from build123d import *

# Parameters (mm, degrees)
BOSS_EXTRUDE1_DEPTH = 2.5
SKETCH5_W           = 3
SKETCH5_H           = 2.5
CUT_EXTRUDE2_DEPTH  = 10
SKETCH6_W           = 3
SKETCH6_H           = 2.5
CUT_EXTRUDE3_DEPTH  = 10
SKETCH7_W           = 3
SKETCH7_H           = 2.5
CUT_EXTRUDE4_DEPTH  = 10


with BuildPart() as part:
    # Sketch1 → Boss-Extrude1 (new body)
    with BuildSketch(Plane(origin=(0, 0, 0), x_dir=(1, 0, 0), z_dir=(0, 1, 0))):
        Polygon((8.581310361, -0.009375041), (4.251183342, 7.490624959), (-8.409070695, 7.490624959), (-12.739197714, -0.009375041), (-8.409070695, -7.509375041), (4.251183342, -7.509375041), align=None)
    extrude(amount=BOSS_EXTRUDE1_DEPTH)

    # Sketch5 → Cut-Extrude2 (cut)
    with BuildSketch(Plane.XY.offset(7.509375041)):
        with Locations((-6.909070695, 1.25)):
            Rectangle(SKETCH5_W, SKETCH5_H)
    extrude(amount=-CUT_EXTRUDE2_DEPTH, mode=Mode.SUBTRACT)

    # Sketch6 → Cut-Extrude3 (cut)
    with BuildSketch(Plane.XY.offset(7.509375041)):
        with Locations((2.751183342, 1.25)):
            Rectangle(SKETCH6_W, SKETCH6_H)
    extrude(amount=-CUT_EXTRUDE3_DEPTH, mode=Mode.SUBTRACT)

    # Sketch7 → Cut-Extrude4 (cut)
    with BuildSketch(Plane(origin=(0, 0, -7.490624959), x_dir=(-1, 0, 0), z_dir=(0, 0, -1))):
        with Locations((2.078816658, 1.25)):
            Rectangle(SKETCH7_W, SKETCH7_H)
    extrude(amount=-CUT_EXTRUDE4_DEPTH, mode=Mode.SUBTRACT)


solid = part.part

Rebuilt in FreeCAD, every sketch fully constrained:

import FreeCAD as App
import Part
import Sketcher
Q = App.Units.Quantity


def add_polygon(sketch, points):
    """Adds a closed chain of lines whose ends are joined by coincident constraints."""
    first, n = sketch.GeometryCount, len(points)
    for a, b in zip(points, points[1:] + points[:1]):
        sketch.addGeometry(Part.LineSegment(App.Vector(*a, 0), App.Vector(*b, 0)), False)
    for i in range(n):
        sketch.addConstraint(Sketcher.Constraint("Coincident", first + i, 2, first + (i + 1) % n, 1))

doc = App.newDocument("Part")
body = doc.addObject("PartDesign::Body", "Body")

# Sketch on XZ plane
sketch1 = doc.addObject("Sketcher::SketchObject", "Sketch")
body.addObject(sketch1)
sketch1.AttachmentSupport = (doc.XZ_Plane, [""])
sketch1.MapMode = "FlatFace"
add_polygon(sketch1, [(8.58131, 0.009375), (4.251183, -7.490625), (-8.409071, -7.490625), (-12.739198, 0.009375), (-8.409071, 7.509375), (4.251183, 7.509375)])  # lines 0-5
sketch1.addConstraint(Sketcher.Constraint("Horizontal", 1))
sketch1.addConstraint(Sketcher.Constraint("Horizontal", 4))
sketch1.addConstraint(Sketcher.Constraint("Parallel", 0, 3))
sketch1.addConstraint(Sketcher.Constraint("Parallel", 2, 5))
sketch1.addConstraint(Sketcher.Constraint("Horizontal", 2, 2, 5, 2))
sketch1.addConstraint(Sketcher.Constraint("Vertical", 1, 2, 3, 2))
sketch1.addConstraint(Sketcher.Constraint("Vertical", 0, 2, 4, 2))
sketch1.addConstraint(Sketcher.Constraint("Angle", 0, Q("-120 deg")))
sketch1.addConstraint(Sketcher.Constraint("DistanceY", 1, 2, 3, 2, 15.0))
sketch1.addConstraint(Sketcher.Constraint("DistanceX", 1, 2, 1, 1, 12.660254))
sketch1.addConstraint(Sketcher.Constraint("DistanceX", 1, 2, -1, 1, 8.409071))
sketch1.addConstraint(Sketcher.Constraint("DistanceY", 0, 2, -1, 1, 7.490625))
pad1 = doc.addObject("PartDesign::Pad", "Pad")
body.addObject(pad1)
pad1.Profile = sketch1
pad1.Length = 2.5
pad1.Reversed = True

# Sketch on XY plane
sketch2 = doc.addObject("Sketcher::SketchObject", "Sketch001")
body.addObject(sketch2)
sketch2.AttachmentSupport = (doc.XY_Plane, [""])
sketch2.MapMode = "FlatFace"
sketch2.AttachmentOffset = App.Placement(App.Vector(0, 0, 7.509375), App.Rotation())
add_polygon(sketch2, [(-8.409071, 2.5), (-8.409071, 0), (-5.409071, 0), (-5.409071, 2.5)])  # lines 0-3
sketch2.addConstraint(Sketcher.Constraint("Vertical", 0))
sketch2.addConstraint(Sketcher.Constraint("Horizontal", 1))
sketch2.addConstraint(Sketcher.Constraint("Vertical", 2))
sketch2.addConstraint(Sketcher.Constraint("Horizontal", 3))
sketch2.addConstraint(Sketcher.Constraint("PointOnObject", 0, 2, -1))
sketch2.addConstraint(Sketcher.Constraint("DistanceX", 1, 1, 1, 2, 3.0))
sketch2.addConstraint(Sketcher.Constraint("DistanceY", 0, 2, 0, 1, 2.5))
sketch2.addConstraint(Sketcher.Constraint("DistanceX", 0, 2, -1, 1, 8.409071))
pocket1 = doc.addObject("PartDesign::Pocket", "Pocket")
body.addObject(pocket1)
pocket1.Profile = sketch2
pocket1.Length = 10

# Sketch on XY plane
sketch3 = doc.addObject("Sketcher::SketchObject", "Sketch002")
body.addObject(sketch3)
sketch3.AttachmentSupport = (doc.XY_Plane, [""])
sketch3.MapMode = "FlatFace"
sketch3.AttachmentOffset = App.Placement(App.Vector(0, 0, 7.509375), App.Rotation())
add_polygon(sketch3, [(1.251183, 2.5), (1.251183, 0), (4.251183, 0), (4.251183, 2.5)])  # lines 0-3
sketch3.addConstraint(Sketcher.Constraint("Vertical", 0))
sketch3.addConstraint(Sketcher.Constraint("Horizontal", 1))
sketch3.addConstraint(Sketcher.Constraint("Vertical", 2))
sketch3.addConstraint(Sketcher.Constraint("Horizontal", 3))
sketch3.addConstraint(Sketcher.Constraint("PointOnObject", 0, 2, -1))
sketch3.addConstraint(Sketcher.Constraint("DistanceX", 1, 1, 1, 2, 3.0))
sketch3.addConstraint(Sketcher.Constraint("DistanceY", 0, 2, 0, 1, 2.5))
sketch3.addConstraint(Sketcher.Constraint("DistanceX", -1, 1, 0, 2, 1.251183))
pocket2 = doc.addObject("PartDesign::Pocket", "Pocket001")
body.addObject(pocket2)
pocket2.Profile = sketch3
pocket2.Length = 10

# Sketch on XY plane
sketch4 = doc.addObject("Sketcher::SketchObject", "Sketch003")
body.addObject(sketch4)
sketch4.AttachmentSupport = (doc.XY_Plane, [""])
sketch4.MapMode = "FlatFace"
sketch4.AttachmentOffset = App.Placement(App.Vector(0, 0, -7.490625), App.Rotation())
add_polygon(sketch4, [(-0.578817, 2.5), (-0.578817, 0), (-3.578817, 0), (-3.578817, 2.5)])  # lines 0-3
sketch4.addConstraint(Sketcher.Constraint("Vertical", 0))
sketch4.addConstraint(Sketcher.Constraint("Horizontal", 1))
sketch4.addConstraint(Sketcher.Constraint("Vertical", 2))
sketch4.addConstraint(Sketcher.Constraint("Horizontal", 3))
sketch4.addConstraint(Sketcher.Constraint("PointOnObject", 0, 2, -1))
sketch4.addConstraint(Sketcher.Constraint("DistanceX", 1, 2, 1, 1, 3.0))
sketch4.addConstraint(Sketcher.Constraint("DistanceY", 0, 2, 0, 1, 2.5))
sketch4.addConstraint(Sketcher.Constraint("DistanceX", 0, 2, -1, 1, 0.578817))
pocket3 = doc.addObject("PartDesign::Pocket", "Pocket002")
body.addObject(pocket3)
pocket3.Profile = sketch4
pocket3.Length = 10
pocket3.Reversed = True

doc.recompute()
